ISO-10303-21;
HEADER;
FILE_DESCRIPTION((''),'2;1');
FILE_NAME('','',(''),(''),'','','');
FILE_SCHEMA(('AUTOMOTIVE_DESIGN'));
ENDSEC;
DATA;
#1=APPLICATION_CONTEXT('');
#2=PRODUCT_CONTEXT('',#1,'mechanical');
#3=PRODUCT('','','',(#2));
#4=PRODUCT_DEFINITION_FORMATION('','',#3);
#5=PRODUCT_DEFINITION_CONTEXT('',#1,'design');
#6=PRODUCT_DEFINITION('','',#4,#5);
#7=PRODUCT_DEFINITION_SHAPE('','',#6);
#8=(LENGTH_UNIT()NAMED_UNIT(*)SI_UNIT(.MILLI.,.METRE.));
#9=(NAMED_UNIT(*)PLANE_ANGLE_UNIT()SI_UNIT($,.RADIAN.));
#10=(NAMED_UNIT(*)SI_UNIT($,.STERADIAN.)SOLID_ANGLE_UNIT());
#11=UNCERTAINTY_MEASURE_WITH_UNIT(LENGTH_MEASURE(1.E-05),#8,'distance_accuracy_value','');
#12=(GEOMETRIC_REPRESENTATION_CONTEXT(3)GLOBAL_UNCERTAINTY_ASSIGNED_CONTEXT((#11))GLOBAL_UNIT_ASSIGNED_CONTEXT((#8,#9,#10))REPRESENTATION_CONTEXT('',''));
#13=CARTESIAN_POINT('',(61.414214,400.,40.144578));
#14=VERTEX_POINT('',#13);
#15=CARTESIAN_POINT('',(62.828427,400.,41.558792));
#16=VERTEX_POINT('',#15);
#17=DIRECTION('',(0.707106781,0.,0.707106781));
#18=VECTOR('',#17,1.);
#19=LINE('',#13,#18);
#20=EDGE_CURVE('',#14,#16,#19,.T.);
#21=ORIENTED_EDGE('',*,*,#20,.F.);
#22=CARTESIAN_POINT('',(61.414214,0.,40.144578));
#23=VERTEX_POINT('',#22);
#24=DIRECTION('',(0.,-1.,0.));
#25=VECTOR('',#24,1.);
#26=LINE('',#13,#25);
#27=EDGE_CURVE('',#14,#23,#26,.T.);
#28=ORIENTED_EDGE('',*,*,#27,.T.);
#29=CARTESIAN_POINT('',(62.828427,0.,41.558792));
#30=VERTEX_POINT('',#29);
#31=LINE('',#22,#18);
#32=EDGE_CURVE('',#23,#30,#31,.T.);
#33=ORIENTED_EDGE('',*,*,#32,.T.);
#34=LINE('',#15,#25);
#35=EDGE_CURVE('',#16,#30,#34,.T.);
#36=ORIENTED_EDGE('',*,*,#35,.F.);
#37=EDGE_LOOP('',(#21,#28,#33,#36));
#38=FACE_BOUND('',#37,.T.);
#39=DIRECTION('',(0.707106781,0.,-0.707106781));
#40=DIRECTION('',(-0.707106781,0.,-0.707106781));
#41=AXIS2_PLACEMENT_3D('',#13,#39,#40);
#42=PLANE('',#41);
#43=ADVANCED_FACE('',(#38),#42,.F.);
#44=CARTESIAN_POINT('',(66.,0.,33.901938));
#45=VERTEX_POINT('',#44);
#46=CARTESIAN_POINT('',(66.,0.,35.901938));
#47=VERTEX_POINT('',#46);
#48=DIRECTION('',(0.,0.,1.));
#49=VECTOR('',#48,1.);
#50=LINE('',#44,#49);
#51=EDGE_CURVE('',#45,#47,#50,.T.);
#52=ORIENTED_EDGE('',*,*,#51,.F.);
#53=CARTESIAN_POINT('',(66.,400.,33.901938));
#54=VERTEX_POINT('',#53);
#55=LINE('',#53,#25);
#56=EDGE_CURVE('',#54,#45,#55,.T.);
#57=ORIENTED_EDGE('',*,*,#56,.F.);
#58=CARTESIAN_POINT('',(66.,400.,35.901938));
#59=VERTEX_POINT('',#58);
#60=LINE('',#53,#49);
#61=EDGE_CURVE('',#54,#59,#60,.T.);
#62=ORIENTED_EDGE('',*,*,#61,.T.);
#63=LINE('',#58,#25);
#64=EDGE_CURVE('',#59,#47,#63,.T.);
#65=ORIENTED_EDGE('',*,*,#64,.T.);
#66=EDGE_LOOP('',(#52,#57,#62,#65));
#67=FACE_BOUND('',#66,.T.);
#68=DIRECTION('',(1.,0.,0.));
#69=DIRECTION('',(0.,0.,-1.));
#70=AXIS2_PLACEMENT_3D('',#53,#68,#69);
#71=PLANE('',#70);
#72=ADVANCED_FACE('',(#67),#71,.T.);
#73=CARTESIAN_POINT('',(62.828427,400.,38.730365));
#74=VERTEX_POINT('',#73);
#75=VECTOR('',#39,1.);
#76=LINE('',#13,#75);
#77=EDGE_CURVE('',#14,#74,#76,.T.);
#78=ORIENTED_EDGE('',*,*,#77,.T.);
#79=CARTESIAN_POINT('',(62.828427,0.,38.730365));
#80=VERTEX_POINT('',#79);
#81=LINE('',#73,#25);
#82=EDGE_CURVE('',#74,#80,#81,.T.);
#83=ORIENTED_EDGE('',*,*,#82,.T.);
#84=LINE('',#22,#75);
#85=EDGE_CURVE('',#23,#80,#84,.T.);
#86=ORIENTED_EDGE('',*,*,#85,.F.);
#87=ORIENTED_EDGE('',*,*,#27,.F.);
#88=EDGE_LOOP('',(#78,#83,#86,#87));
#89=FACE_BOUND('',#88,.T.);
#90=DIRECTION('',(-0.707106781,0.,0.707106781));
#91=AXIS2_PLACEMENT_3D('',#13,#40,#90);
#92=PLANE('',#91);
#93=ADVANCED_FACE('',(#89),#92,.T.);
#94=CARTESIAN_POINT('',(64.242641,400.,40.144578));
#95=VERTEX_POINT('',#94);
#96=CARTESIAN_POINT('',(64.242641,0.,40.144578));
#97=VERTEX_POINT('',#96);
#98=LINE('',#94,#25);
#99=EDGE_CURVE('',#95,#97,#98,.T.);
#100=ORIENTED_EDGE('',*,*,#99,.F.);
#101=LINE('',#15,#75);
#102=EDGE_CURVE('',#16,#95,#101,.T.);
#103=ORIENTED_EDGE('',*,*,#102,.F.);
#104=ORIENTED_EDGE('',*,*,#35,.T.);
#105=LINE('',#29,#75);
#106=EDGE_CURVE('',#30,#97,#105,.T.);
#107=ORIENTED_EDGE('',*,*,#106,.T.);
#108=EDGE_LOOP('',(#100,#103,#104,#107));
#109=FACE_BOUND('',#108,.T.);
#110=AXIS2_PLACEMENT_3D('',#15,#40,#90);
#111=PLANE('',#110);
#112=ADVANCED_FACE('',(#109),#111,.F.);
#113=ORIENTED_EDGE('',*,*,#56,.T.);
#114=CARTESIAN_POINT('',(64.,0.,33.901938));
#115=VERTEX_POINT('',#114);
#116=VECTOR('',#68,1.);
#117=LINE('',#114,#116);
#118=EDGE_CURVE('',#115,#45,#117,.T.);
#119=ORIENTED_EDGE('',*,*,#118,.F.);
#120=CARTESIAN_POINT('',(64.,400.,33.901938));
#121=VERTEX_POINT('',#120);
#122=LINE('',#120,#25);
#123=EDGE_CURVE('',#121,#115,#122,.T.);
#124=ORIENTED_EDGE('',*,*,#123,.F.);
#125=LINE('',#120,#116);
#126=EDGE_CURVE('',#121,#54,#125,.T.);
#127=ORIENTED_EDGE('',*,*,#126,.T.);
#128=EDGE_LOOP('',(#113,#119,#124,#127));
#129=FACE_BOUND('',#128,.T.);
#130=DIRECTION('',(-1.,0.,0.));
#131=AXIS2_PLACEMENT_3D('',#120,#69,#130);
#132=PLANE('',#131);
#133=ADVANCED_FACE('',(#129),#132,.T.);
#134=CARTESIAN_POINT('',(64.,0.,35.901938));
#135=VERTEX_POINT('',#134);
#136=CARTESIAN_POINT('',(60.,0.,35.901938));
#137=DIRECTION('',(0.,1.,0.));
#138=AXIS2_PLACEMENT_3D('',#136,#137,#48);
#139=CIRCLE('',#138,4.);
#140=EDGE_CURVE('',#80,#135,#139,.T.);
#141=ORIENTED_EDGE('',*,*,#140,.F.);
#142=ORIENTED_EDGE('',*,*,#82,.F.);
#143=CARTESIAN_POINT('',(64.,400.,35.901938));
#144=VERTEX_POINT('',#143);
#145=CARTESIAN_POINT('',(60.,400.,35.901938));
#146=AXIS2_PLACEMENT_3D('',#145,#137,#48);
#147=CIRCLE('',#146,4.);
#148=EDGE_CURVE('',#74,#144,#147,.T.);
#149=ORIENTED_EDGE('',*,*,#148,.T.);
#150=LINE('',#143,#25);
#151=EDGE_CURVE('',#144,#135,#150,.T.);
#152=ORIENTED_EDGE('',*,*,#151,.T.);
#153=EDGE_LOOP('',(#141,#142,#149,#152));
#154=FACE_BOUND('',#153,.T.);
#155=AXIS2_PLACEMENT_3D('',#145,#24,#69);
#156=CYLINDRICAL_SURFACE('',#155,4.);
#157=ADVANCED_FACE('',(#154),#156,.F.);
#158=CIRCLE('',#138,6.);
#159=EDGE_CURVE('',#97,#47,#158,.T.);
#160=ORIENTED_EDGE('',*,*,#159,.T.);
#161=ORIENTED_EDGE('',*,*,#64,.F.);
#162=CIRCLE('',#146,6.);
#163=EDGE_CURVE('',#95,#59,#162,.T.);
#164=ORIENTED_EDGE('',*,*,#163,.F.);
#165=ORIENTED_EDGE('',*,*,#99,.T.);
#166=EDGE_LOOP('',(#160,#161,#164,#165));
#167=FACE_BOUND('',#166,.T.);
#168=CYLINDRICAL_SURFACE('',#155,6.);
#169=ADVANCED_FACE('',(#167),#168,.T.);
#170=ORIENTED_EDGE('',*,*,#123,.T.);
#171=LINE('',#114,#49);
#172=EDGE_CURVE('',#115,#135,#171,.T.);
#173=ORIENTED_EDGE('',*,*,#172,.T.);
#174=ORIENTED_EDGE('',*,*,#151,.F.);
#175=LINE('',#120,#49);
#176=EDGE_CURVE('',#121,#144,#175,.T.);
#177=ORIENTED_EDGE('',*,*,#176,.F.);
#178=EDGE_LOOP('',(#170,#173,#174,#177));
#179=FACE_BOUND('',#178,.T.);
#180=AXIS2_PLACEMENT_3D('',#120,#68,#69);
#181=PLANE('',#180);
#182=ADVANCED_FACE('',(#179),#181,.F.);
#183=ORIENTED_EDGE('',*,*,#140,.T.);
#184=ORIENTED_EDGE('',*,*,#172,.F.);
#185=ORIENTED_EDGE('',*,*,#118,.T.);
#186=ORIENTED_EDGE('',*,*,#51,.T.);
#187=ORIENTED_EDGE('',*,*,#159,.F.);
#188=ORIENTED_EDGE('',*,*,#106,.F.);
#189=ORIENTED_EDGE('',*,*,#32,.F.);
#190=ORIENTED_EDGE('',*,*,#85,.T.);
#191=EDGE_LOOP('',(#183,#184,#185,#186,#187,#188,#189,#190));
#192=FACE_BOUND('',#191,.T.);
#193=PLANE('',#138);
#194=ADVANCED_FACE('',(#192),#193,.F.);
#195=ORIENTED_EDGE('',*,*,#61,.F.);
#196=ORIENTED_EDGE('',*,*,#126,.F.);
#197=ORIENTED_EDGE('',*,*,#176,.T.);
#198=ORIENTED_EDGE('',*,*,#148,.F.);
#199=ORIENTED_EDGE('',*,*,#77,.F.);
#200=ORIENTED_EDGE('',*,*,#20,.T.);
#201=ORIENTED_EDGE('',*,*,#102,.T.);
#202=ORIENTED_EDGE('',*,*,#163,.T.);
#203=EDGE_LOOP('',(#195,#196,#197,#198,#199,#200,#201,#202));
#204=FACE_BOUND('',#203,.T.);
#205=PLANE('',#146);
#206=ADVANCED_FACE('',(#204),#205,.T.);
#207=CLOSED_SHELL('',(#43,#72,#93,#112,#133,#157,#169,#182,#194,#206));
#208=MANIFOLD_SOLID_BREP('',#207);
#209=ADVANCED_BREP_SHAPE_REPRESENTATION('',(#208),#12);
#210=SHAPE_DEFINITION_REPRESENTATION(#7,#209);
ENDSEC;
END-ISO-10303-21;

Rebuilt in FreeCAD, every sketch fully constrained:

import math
import FreeCAD as App
import Part
import Sketcher
from FreeCAD import Vector
Q = App.Units.Quantity

doc = App.newDocument("Part")
body = doc.addObject("PartDesign::Body", "Body")

sketch1 = doc.addObject("Sketcher::SketchObject", "Sketch")
body.addObject(sketch1)
sketch1.AttachmentSupport = (doc.XZ_Plane, [""])
sketch1.MapMode = "FlatFace"
sketch1.addGeometry([
    Part.LineSegment(Vector(62.828427, 38.730365, 0), Vector(61.414214, 40.144578, 0)),
    Part.LineSegment(Vector(61.414214, 40.144578, 0), Vector(62.828427, 41.558792, 0)),
    Part.LineSegment(Vector(62.828427, 41.558792, 0), Vector(64.242641, 40.144578, 0)),
    Part.ArcOfCircle(Part.Circle(Vector(60, 35.901938, 0), Vector(0, 0, 1), 6), math.radians(0), math.radians(45)),
    Part.LineSegment(Vector(66, 35.901938, 0), Vector(66, 33.901938, 0)),
    Part.LineSegment(Vector(66, 33.901938, 0), Vector(64, 33.901938, 0)),
    Part.LineSegment(Vector(64, 33.901938, 0), Vector(64, 35.901938, 0)),
    Part.ArcOfCircle(Part.Circle(Vector(60, 35.901938, 0), Vector(0, 0, 1), 4), math.radians(0), math.radians(45)),
], False)
sketch1.addConstraint([
    Sketcher.Constraint("Coincident", 0, 2, 1, 1),
    Sketcher.Constraint("Coincident", 1, 2, 2, 1),
    Sketcher.Constraint("Tangent", 2, 2, 3, 2),
    Sketcher.Constraint("Tangent", 3, 1, 4, 1),
    Sketcher.Constraint("Coincident", 4, 2, 5, 1),
    Sketcher.Constraint("Coincident", 5, 2, 6, 1),
    Sketcher.Constraint("Tangent", 6, 2, 7, 1),
    Sketcher.Constraint("Tangent", 7, 2, 0, 1),
    Sketcher.Constraint("Vertical", 4),
    Sketcher.Constraint("Horizontal", 5),
    Sketcher.Constraint("Vertical", 6),
    Sketcher.Constraint("Coincident", 7, 3, 3, 3),
    Sketcher.Constraint("Perpendicular", 0, 1),
    Sketcher.Constraint("Perpendicular", 1, 2),
    Sketcher.Constraint("Horizontal", 0, 2, 2, 2),
    Sketcher.Constraint("Vertical", 1, 2, 7, 2),
    Sketcher.Constraint("Equal", 5, 4),
    Sketcher.Constraint("Radius", 3, Q("6 mm")),
    Sketcher.Constraint("Radius", 7, Q("4 mm")),
    Sketcher.Constraint("DistanceX", -1, 1, 3, 3, Q("60 mm")),
    Sketcher.Constraint("DistanceY", -1, 1, 0, 2, Q("40.144578 mm")),
])
pad1 = doc.addObject("PartDesign::Pad", "Pad")
body.addObject(pad1)
pad1.Profile = sketch1
pad1.Length = 400
pad1.Reversed = True

doc.recompute()
